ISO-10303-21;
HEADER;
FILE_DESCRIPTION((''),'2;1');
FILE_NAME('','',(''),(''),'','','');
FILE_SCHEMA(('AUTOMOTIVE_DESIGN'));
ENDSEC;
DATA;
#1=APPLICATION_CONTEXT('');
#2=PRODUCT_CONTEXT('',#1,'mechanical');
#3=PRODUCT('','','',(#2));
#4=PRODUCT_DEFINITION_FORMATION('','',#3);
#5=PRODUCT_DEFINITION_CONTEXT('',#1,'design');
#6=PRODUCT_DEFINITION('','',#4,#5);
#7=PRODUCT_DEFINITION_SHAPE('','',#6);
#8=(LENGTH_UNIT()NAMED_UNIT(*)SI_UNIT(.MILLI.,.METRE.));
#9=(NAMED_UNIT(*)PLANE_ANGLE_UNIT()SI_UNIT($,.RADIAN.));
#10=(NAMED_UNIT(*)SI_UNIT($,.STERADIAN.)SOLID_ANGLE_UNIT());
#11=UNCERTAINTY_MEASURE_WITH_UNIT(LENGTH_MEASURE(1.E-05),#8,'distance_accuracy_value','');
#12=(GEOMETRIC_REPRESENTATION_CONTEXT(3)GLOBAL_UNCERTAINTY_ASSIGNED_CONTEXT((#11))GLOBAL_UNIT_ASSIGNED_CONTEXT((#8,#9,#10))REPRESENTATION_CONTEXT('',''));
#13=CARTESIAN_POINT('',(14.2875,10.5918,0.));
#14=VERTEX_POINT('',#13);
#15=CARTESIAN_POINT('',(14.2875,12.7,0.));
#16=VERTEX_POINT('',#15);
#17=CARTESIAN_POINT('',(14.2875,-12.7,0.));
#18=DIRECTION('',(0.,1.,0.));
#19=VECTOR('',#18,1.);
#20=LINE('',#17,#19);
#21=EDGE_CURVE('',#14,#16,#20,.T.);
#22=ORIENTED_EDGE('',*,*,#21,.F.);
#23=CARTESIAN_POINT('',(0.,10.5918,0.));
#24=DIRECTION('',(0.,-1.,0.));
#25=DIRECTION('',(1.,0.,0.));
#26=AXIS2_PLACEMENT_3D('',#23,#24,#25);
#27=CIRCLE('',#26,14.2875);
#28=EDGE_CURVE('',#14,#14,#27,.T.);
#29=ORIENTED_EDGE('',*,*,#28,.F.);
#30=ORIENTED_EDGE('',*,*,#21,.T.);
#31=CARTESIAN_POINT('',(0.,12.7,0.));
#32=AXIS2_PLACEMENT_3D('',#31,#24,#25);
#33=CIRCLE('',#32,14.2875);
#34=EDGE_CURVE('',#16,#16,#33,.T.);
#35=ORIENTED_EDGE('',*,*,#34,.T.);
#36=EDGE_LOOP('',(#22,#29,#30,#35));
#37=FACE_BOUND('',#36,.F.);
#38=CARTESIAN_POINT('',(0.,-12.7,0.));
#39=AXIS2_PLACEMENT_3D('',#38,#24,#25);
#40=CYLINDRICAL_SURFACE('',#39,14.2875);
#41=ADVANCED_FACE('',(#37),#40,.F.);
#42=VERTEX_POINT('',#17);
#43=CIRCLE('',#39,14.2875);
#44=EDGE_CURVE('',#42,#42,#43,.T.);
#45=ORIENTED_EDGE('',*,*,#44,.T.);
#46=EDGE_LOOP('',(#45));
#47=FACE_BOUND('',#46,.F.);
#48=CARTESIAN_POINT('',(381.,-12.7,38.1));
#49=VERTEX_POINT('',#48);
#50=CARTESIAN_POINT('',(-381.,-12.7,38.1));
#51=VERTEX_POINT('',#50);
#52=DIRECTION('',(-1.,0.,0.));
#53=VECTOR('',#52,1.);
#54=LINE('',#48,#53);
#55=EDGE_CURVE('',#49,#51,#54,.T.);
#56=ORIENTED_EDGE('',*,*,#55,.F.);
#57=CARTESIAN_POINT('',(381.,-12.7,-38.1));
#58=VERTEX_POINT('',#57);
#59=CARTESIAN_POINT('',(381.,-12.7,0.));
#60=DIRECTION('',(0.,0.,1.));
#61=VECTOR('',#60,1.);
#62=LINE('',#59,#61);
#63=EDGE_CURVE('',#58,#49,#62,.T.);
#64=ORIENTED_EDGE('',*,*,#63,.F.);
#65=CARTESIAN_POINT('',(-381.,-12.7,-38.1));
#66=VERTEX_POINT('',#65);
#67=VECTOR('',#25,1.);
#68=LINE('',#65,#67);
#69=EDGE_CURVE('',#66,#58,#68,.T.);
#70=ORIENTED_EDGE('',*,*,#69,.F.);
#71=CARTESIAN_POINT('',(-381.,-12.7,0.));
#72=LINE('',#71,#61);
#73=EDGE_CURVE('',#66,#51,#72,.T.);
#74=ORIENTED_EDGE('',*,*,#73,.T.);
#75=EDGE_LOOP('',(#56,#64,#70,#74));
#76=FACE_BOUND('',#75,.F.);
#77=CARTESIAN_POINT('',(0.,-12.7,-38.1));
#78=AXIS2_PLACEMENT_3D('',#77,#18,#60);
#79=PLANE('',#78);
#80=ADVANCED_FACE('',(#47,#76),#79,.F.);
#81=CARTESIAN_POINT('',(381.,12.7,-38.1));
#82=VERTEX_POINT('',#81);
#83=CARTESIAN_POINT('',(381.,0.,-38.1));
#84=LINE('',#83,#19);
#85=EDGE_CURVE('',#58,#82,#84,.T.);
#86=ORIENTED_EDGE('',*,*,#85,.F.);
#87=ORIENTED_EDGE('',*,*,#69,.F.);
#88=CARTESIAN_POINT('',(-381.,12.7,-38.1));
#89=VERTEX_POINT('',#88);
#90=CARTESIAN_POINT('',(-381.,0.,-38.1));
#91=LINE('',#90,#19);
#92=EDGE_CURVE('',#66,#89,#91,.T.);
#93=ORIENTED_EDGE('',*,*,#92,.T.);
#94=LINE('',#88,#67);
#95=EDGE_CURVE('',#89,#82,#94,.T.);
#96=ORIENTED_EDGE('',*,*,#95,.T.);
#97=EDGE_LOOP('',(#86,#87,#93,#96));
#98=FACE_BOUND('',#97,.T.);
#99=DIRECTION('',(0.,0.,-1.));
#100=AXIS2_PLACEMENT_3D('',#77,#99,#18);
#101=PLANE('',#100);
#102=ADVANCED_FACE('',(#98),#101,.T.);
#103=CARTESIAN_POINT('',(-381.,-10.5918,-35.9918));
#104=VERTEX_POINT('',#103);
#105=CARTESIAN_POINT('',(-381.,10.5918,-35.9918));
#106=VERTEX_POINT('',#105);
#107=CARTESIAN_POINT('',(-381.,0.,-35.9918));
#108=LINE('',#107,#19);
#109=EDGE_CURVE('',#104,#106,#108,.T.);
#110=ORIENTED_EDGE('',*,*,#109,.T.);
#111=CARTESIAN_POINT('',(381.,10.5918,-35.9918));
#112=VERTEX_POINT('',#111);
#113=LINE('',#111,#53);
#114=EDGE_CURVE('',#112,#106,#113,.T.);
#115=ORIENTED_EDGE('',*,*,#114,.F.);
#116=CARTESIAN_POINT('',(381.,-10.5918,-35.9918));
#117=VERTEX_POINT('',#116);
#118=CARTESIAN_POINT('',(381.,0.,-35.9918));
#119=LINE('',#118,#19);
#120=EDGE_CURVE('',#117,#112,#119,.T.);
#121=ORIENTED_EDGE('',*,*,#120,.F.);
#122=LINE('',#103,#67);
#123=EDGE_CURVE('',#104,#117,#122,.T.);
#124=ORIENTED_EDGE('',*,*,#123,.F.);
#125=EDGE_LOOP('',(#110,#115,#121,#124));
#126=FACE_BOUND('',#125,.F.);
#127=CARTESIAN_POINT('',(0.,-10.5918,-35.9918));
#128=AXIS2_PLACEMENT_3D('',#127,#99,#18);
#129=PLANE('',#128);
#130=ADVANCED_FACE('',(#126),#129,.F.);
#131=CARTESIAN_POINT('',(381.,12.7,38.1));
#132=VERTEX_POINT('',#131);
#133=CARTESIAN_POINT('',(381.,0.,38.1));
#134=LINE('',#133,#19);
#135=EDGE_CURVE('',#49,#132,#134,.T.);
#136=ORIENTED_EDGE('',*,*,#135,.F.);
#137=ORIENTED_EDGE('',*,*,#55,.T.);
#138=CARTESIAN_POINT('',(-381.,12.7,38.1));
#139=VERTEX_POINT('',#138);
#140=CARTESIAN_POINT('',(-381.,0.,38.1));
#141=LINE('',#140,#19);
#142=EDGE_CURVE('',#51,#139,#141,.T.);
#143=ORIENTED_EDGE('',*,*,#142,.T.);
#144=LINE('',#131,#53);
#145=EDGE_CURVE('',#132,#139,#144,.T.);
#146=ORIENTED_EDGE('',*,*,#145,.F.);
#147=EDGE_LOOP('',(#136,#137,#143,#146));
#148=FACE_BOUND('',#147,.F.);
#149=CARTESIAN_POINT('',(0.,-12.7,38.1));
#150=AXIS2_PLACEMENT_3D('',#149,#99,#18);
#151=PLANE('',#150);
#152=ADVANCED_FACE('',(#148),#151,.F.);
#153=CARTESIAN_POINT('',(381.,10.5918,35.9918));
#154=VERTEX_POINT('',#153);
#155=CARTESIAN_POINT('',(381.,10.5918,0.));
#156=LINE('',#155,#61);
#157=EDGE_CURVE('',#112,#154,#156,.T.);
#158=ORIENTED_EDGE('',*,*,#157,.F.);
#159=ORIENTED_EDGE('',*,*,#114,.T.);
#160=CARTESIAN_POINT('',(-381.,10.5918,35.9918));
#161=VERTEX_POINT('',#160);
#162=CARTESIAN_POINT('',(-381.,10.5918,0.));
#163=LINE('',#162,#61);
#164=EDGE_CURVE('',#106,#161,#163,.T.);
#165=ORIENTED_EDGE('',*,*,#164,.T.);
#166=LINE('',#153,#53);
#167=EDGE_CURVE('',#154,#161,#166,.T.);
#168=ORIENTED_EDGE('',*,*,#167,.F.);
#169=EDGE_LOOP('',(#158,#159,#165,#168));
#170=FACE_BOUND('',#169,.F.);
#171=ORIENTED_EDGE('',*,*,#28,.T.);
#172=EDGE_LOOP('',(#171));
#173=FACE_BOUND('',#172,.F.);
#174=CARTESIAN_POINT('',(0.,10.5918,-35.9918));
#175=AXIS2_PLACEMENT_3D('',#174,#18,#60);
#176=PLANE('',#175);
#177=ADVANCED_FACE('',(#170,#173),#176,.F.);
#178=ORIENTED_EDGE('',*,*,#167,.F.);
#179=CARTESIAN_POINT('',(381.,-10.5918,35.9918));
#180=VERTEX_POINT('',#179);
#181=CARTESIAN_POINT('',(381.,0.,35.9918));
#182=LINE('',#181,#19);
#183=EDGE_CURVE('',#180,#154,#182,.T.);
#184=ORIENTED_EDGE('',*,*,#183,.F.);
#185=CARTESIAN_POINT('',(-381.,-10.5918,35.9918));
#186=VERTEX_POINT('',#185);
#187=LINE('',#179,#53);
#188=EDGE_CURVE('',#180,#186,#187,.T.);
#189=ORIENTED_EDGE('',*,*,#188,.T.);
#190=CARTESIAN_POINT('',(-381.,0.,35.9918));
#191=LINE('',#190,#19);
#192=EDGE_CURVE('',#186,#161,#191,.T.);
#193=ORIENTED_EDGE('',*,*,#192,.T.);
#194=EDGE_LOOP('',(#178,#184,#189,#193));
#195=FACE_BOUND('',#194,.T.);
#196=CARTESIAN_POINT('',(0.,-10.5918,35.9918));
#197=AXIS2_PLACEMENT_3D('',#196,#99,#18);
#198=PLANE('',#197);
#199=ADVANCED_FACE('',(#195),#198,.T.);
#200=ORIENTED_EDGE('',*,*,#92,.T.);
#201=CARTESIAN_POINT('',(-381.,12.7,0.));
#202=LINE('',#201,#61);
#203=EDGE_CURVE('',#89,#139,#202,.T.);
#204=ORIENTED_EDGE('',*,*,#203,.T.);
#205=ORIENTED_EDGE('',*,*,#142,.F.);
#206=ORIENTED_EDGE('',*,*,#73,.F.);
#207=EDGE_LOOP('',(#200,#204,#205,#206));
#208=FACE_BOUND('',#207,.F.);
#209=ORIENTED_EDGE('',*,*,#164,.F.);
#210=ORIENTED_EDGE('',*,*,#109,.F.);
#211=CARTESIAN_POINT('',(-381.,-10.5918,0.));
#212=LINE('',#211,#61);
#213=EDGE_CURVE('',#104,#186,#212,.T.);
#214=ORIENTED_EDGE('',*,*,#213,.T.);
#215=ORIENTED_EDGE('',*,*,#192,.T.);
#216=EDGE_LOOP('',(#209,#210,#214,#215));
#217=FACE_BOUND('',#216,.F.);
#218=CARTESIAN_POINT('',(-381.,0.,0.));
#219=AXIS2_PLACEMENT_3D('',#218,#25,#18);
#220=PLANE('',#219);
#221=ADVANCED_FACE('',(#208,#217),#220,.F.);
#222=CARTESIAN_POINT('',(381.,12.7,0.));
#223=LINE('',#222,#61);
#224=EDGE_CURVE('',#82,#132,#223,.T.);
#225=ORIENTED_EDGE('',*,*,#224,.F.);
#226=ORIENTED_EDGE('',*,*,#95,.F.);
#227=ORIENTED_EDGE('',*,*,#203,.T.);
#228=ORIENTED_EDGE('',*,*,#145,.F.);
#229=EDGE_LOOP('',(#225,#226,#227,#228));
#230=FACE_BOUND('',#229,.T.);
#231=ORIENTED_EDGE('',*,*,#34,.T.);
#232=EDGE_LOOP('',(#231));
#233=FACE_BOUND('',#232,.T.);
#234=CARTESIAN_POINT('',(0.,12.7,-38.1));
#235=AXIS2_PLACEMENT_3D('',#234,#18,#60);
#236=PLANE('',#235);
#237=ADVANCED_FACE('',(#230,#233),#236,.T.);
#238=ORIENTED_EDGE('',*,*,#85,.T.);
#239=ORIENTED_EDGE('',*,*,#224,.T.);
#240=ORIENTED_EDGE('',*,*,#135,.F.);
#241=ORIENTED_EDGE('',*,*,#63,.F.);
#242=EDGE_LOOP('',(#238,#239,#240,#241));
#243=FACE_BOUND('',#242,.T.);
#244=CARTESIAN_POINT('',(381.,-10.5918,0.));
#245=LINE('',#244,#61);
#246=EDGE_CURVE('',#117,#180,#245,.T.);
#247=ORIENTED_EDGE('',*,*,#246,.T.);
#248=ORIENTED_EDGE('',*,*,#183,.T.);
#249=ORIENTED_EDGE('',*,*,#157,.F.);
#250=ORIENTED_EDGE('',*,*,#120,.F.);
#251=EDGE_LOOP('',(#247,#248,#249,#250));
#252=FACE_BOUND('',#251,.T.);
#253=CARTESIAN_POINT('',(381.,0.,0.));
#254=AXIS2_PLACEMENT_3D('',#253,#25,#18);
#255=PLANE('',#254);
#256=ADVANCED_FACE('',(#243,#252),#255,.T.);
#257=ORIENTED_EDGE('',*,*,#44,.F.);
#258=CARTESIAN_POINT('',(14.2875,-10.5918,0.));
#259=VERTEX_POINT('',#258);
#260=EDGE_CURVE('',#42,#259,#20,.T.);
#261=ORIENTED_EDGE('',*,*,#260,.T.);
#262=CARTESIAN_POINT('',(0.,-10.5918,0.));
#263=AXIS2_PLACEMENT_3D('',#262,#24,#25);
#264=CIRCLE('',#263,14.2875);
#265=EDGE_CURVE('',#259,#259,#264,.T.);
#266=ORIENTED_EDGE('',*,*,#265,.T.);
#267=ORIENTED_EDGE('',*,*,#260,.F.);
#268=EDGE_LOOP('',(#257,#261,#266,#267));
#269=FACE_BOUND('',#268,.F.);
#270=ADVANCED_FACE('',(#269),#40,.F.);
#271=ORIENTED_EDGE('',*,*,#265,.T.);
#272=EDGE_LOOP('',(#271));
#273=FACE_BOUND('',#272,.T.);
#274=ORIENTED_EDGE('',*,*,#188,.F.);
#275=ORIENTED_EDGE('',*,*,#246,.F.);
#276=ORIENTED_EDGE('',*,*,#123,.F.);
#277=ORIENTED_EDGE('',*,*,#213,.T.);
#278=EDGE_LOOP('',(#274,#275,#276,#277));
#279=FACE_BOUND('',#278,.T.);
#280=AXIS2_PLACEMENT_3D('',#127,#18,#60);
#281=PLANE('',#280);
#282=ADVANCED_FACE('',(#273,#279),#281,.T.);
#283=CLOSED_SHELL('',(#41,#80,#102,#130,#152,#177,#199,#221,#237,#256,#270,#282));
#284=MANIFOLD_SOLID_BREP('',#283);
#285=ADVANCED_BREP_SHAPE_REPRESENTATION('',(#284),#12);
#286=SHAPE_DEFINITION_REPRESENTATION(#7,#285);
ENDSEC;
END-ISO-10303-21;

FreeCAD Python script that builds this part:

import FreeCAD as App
import Part
import Sketcher
Q = App.Units.Quantity


def add_polygon(sketch, points):
    """Adds a closed chain of lines whose ends are joined by coincident constraints."""
    first, n = sketch.GeometryCount, len(points)
    for a, b in zip(points, points[1:] + points[:1]):
        sketch.addGeometry(Part.LineSegment(App.Vector(*a, 0), App.Vector(*b, 0)), False)
    for i in range(n):
        sketch.addConstraint(Sketcher.Constraint("Coincident", first + i, 2, first + (i + 1) % n, 1))

doc = App.newDocument("Part")
body = doc.addObject("PartDesign::Body", "Body")

# Sketch on YZ plane
sketch1 = body.newObject("Sketcher::SketchObject", "Sketch")
sketch1.AttachmentSupport = (doc.getObject("YZ_Plane"), [""])
sketch1.MapMode = "FlatFace"
add_polygon(sketch1, [(-13, 38), (-13, -38), (13, -38), (13, 38)])  # lines 0-3
add_polygon(sketch1, [(11, -36), (-11, -36), (-11, 36), (11, 36)])  # lines 4-7
sketch1.addConstraint([
    Sketcher.Constraint("Vertical", 0),
    Sketcher.Constraint("Horizontal", 1),
    Sketcher.Constraint("Vertical", 2),
    Sketcher.Constraint("Horizontal", 3),
    Sketcher.Constraint("Horizontal", 4),
    Sketcher.Constraint("Vertical", 5),
    Sketcher.Constraint("Horizontal", 6),
    Sketcher.Constraint("Vertical", 7),
    Sketcher.Constraint("Symmetric", 0, 2, 2, 2, -1, 1),
    Sketcher.Constraint("Symmetric", 4, 2, 6, 2, -1, 1),
    Sketcher.Constraint("DistanceX", 1, 1, 1, 2, Q("1 in")),
    Sketcher.Constraint("DistanceY", 0, 2, 0, 1, Q("3 in")),
    Sketcher.Constraint("DistanceX", 4, 2, 4, 1, Q("0.834 in")),
    Sketcher.Constraint("DistanceY", 5, 1, 5, 2, Q("2.834 in")),
])
pad1 = body.newObject("PartDesign::Pad", "Pad")
pad1.Profile = sketch1
pad1.Length = Q("30 in")
pad1.Midplane = True

# Sketch on XZ plane
sketch2 = body.newObject("Sketcher::SketchObject", "Sketch001")
sketch2.AttachmentSupport = (doc.getObject("XZ_Plane"), [""])
sketch2.MapMode = "FlatFace"
sketch2.AttachmentOffset = App.Placement(App.Vector(0, 0, 0.5 * 25.4), App.Rotation())
sketch2.addGeometry(Part.Circle(App.Vector(0, 0, 0), App.Vector(0, 0, 1), 14), False)
sketch2.addConstraint([
    Sketcher.Constraint("Coincident", 0, 3, -1, 1),
    Sketcher.Constraint("Diameter", 0, Q("1.125 in")),
])
pocket1 = body.newObject("PartDesign::Pocket", "Pocket")
pocket1.Profile = sketch2
pocket1.Type = "ThroughAll"

doc.recompute()
